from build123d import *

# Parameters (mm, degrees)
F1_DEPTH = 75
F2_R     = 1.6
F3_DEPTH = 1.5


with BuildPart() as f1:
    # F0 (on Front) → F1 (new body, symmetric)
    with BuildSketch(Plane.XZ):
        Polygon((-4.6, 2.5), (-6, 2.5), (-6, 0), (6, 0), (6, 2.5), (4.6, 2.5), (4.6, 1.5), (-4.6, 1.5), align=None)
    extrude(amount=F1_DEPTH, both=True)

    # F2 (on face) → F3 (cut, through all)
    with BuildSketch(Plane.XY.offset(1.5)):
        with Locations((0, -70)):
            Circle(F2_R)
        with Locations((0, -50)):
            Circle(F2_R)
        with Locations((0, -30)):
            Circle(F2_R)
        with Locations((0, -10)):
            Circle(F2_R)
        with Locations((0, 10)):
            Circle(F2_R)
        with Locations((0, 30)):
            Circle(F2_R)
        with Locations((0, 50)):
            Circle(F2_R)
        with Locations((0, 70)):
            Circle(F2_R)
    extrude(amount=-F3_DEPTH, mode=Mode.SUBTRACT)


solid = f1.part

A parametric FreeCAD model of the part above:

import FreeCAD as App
import Part
import Sketcher
from FreeCAD import Vector
Q = App.Units.Quantity

doc = App.newDocument("Part")
body = doc.addObject("PartDesign::Body", "Body")

# Sketch on XZ plane
sketch1 = body.newObject("Sketcher::SketchObject", "Sketch")
sketch1.AttachmentSupport = (doc.getObject("XZ_Plane"), [""])
sketch1.MapMode = "FlatFace"
sketch1.addGeometry(Part.LineSegment(Vector(-4.6, 2.5, 0), Vector(-6, 2.5, 0)), False)
sketch1.addGeometry(Part.LineSegment(Vector(-6, 2.5, 0), Vector(-6, 0, 0)), False)
sketch1.addGeometry(Part.LineSegment(Vector(-6, 0, 0), Vector(6, 0, 0)), False)
sketch1.addGeometry(Part.LineSegment(Vector(6, 0, 0), Vector(6, 2.5, 0)), False)
sketch1.addGeometry(Part.LineSegment(Vector(6, 2.5, 0), Vector(4.6, 2.5, 0)), False)
sketch1.addGeometry(Part.LineSegment(Vector(4.6, 2.5, 0), Vector(4.6, 1.5, 0)), False)
sketch1.addGeometry(Part.LineSegment(Vector(4.6, 1.5, 0), Vector(-4.6, 1.5, 0)), False)
sketch1.addGeometry(Part.LineSegment(Vector(-4.6, 1.5, 0), Vector(-4.6, 2.5, 0)), False)
sketch1.addConstraint(Sketcher.Constraint("Coincident", 0, 2, 1, 1))
sketch1.addConstraint(Sketcher.Constraint("Coincident", 1, 2, 2, 1))
sketch1.addConstraint(Sketcher.Constraint("Coincident", 2, 2, 3, 1))
sketch1.addConstraint(Sketcher.Constraint("Coincident", 3, 2, 4, 1))
sketch1.addConstraint(Sketcher.Constraint("Coincident", 4, 2, 5, 1))
sketch1.addConstraint(Sketcher.Constraint("Coincident", 5, 2, 6, 1))
sketch1.addConstraint(Sketcher.Constraint("Coincident", 6, 2, 7, 1))
sketch1.addConstraint(Sketcher.Constraint("Coincident", 7, 2, 0, 1))
sketch1.addConstraint(Sketcher.Constraint("Horizontal", 0))
sketch1.addConstraint(Sketcher.Constraint("Vertical", 1))
sketch1.addConstraint(Sketcher.Constraint("Horizontal", 2))
sketch1.addConstraint(Sketcher.Constraint("Vertical", 3))
sketch1.addConstraint(Sketcher.Constraint("Horizontal", 4))
sketch1.addConstraint(Sketcher.Constraint("Vertical", 5))
sketch1.addConstraint(Sketcher.Constraint("Horizontal", 6))
sketch1.addConstraint(Sketcher.Constraint("Vertical", 7))
sketch1.addConstraint(Sketcher.Constraint("Symmetric", 1, 2, 2, 2, -1, 1))
sketch1.addConstraint(Sketcher.Constraint("Symmetric", 4, 2, 7, 2, -2))
sketch1.addConstraint(Sketcher.Constraint("DistanceX", 2, 1, 2, 2, Q("12 mm")))
sketch1.addConstraint(Sketcher.Constraint("DistanceY", 5, 2, 5, 1, Q("1 mm")))
sketch1.addConstraint(Sketcher.Constraint("DistanceX", 0, 2, 0, 1, Q("1.4 mm")))
sketch1.addConstraint(Sketcher.Constraint("DistanceY", 1, 2, 1, 1, Q("2.5 mm")))
pad1 = body.newObject("PartDesign::Pad", "Pad")
pad1.Profile = sketch1
pad1.Length = 150
pad1.Midplane = True

# Sketch on XY plane
sketch2 = body.newObject("Sketcher::SketchObject", "Sketch001")
sketch2.AttachmentSupport = (doc.getObject("XY_Plane"), [""])
sketch2.MapMode = "FlatFace"
sketch2.AttachmentOffset = App.Placement(Vector(0, 0, 1.5), App.Rotation())
sketch2.addGeometry(Part.Circle(Vector(0, -70, 0), Vector(0, 0, 1), 1.6), False)
sketch2.addGeometry(Part.Circle(Vector(0, -50, 0), Vector(0, 0, 1), 1.6), False)
sketch2.addGeometry(Part.Circle(Vector(0, -30, 0), Vector(0, 0, 1), 1.6), False)
sketch2.addGeometry(Part.Circle(Vector(0, -10, 0), Vector(0, 0, 1), 1.6), False)
sketch2.addGeometry(Part.Circle(Vector(0, 10, 0), Vector(0, 0, 1), 1.6), False)
sketch2.addGeometry(Part.Circle(Vector(0, 30, 0), Vector(0, 0, 1), 1.6), False)
sketch2.addGeometry(Part.Circle(Vector(0, 50, 0), Vector(0, 0, 1), 1.6), False)
sketch2.addGeometry(Part.Circle(Vector(0, 70, 0), Vector(0, 0, 1), 1.6), False)
sketch2.addConstraint(Sketcher.Constraint("Equal", 0, 1))
sketch2.addConstraint(Sketcher.Constraint("Equal", 1, 2))
sketch2.addConstraint(Sketcher.Constraint("Equal", 2, 3))
sketch2.addConstraint(Sketcher.Constraint("Equal", 3, 4))
sketch2.addConstraint(Sketcher.Constraint("Equal", 4, 5))
sketch2.addConstraint(Sketcher.Constraint("Equal", 5, 6))
sketch2.addConstraint(Sketcher.Constraint("Equal", 6, 7))
sketch2.addConstraint(Sketcher.Constraint("Symmetric", 3, 3, 4, 3, -1, 1))
sketch2.addConstraint(Sketcher.Constraint("Symmetric", 2, 3, 5, 3, -1, 1))
sketch2.addConstraint(Sketcher.Constraint("Symmetric", 1, 3, 6, 3, -1, 1))
sketch2.addConstraint(Sketcher.Constraint("Symmetric", 0, 3, 7, 3, -1, 1))
sketch2.addConstraint(Sketcher.Constraint("PointOnObject", 0, 3, -2))
sketch2.addConstraint(Sketcher.Constraint("PointOnObject", 1, 3, -2))
sketch2.addConstraint(Sketcher.Constraint("PointOnObject", 2, 3, -2))
sketch2.addConstraint(Sketcher.Constraint("PointOnObject", 3, 3, -2))
sketch2.addConstraint(Sketcher.Constraint("Diameter", 0, Q("3.2 mm")))
sketch2.addConstraint(Sketcher.Constraint("DistanceY", 0, 3, -1, 1, Q("70 mm")))
sketch2.addConstraint(Sketcher.Constraint("DistanceY", 1, 3, -1, 1, Q("50 mm")))
sketch2.addConstraint(Sketcher.Constraint("DistanceY", 2, 3, -1, 1, Q("30 mm")))
sketch2.addConstraint(Sketcher.Constraint("DistanceY", 3, 3, -1, 1, Q("10 mm")))
pocket1 = body.newObject("PartDesign::Pocket", "Pocket")
pocket1.Profile = sketch2
pocket1.Type = "ThroughAll"

doc.recompute()
